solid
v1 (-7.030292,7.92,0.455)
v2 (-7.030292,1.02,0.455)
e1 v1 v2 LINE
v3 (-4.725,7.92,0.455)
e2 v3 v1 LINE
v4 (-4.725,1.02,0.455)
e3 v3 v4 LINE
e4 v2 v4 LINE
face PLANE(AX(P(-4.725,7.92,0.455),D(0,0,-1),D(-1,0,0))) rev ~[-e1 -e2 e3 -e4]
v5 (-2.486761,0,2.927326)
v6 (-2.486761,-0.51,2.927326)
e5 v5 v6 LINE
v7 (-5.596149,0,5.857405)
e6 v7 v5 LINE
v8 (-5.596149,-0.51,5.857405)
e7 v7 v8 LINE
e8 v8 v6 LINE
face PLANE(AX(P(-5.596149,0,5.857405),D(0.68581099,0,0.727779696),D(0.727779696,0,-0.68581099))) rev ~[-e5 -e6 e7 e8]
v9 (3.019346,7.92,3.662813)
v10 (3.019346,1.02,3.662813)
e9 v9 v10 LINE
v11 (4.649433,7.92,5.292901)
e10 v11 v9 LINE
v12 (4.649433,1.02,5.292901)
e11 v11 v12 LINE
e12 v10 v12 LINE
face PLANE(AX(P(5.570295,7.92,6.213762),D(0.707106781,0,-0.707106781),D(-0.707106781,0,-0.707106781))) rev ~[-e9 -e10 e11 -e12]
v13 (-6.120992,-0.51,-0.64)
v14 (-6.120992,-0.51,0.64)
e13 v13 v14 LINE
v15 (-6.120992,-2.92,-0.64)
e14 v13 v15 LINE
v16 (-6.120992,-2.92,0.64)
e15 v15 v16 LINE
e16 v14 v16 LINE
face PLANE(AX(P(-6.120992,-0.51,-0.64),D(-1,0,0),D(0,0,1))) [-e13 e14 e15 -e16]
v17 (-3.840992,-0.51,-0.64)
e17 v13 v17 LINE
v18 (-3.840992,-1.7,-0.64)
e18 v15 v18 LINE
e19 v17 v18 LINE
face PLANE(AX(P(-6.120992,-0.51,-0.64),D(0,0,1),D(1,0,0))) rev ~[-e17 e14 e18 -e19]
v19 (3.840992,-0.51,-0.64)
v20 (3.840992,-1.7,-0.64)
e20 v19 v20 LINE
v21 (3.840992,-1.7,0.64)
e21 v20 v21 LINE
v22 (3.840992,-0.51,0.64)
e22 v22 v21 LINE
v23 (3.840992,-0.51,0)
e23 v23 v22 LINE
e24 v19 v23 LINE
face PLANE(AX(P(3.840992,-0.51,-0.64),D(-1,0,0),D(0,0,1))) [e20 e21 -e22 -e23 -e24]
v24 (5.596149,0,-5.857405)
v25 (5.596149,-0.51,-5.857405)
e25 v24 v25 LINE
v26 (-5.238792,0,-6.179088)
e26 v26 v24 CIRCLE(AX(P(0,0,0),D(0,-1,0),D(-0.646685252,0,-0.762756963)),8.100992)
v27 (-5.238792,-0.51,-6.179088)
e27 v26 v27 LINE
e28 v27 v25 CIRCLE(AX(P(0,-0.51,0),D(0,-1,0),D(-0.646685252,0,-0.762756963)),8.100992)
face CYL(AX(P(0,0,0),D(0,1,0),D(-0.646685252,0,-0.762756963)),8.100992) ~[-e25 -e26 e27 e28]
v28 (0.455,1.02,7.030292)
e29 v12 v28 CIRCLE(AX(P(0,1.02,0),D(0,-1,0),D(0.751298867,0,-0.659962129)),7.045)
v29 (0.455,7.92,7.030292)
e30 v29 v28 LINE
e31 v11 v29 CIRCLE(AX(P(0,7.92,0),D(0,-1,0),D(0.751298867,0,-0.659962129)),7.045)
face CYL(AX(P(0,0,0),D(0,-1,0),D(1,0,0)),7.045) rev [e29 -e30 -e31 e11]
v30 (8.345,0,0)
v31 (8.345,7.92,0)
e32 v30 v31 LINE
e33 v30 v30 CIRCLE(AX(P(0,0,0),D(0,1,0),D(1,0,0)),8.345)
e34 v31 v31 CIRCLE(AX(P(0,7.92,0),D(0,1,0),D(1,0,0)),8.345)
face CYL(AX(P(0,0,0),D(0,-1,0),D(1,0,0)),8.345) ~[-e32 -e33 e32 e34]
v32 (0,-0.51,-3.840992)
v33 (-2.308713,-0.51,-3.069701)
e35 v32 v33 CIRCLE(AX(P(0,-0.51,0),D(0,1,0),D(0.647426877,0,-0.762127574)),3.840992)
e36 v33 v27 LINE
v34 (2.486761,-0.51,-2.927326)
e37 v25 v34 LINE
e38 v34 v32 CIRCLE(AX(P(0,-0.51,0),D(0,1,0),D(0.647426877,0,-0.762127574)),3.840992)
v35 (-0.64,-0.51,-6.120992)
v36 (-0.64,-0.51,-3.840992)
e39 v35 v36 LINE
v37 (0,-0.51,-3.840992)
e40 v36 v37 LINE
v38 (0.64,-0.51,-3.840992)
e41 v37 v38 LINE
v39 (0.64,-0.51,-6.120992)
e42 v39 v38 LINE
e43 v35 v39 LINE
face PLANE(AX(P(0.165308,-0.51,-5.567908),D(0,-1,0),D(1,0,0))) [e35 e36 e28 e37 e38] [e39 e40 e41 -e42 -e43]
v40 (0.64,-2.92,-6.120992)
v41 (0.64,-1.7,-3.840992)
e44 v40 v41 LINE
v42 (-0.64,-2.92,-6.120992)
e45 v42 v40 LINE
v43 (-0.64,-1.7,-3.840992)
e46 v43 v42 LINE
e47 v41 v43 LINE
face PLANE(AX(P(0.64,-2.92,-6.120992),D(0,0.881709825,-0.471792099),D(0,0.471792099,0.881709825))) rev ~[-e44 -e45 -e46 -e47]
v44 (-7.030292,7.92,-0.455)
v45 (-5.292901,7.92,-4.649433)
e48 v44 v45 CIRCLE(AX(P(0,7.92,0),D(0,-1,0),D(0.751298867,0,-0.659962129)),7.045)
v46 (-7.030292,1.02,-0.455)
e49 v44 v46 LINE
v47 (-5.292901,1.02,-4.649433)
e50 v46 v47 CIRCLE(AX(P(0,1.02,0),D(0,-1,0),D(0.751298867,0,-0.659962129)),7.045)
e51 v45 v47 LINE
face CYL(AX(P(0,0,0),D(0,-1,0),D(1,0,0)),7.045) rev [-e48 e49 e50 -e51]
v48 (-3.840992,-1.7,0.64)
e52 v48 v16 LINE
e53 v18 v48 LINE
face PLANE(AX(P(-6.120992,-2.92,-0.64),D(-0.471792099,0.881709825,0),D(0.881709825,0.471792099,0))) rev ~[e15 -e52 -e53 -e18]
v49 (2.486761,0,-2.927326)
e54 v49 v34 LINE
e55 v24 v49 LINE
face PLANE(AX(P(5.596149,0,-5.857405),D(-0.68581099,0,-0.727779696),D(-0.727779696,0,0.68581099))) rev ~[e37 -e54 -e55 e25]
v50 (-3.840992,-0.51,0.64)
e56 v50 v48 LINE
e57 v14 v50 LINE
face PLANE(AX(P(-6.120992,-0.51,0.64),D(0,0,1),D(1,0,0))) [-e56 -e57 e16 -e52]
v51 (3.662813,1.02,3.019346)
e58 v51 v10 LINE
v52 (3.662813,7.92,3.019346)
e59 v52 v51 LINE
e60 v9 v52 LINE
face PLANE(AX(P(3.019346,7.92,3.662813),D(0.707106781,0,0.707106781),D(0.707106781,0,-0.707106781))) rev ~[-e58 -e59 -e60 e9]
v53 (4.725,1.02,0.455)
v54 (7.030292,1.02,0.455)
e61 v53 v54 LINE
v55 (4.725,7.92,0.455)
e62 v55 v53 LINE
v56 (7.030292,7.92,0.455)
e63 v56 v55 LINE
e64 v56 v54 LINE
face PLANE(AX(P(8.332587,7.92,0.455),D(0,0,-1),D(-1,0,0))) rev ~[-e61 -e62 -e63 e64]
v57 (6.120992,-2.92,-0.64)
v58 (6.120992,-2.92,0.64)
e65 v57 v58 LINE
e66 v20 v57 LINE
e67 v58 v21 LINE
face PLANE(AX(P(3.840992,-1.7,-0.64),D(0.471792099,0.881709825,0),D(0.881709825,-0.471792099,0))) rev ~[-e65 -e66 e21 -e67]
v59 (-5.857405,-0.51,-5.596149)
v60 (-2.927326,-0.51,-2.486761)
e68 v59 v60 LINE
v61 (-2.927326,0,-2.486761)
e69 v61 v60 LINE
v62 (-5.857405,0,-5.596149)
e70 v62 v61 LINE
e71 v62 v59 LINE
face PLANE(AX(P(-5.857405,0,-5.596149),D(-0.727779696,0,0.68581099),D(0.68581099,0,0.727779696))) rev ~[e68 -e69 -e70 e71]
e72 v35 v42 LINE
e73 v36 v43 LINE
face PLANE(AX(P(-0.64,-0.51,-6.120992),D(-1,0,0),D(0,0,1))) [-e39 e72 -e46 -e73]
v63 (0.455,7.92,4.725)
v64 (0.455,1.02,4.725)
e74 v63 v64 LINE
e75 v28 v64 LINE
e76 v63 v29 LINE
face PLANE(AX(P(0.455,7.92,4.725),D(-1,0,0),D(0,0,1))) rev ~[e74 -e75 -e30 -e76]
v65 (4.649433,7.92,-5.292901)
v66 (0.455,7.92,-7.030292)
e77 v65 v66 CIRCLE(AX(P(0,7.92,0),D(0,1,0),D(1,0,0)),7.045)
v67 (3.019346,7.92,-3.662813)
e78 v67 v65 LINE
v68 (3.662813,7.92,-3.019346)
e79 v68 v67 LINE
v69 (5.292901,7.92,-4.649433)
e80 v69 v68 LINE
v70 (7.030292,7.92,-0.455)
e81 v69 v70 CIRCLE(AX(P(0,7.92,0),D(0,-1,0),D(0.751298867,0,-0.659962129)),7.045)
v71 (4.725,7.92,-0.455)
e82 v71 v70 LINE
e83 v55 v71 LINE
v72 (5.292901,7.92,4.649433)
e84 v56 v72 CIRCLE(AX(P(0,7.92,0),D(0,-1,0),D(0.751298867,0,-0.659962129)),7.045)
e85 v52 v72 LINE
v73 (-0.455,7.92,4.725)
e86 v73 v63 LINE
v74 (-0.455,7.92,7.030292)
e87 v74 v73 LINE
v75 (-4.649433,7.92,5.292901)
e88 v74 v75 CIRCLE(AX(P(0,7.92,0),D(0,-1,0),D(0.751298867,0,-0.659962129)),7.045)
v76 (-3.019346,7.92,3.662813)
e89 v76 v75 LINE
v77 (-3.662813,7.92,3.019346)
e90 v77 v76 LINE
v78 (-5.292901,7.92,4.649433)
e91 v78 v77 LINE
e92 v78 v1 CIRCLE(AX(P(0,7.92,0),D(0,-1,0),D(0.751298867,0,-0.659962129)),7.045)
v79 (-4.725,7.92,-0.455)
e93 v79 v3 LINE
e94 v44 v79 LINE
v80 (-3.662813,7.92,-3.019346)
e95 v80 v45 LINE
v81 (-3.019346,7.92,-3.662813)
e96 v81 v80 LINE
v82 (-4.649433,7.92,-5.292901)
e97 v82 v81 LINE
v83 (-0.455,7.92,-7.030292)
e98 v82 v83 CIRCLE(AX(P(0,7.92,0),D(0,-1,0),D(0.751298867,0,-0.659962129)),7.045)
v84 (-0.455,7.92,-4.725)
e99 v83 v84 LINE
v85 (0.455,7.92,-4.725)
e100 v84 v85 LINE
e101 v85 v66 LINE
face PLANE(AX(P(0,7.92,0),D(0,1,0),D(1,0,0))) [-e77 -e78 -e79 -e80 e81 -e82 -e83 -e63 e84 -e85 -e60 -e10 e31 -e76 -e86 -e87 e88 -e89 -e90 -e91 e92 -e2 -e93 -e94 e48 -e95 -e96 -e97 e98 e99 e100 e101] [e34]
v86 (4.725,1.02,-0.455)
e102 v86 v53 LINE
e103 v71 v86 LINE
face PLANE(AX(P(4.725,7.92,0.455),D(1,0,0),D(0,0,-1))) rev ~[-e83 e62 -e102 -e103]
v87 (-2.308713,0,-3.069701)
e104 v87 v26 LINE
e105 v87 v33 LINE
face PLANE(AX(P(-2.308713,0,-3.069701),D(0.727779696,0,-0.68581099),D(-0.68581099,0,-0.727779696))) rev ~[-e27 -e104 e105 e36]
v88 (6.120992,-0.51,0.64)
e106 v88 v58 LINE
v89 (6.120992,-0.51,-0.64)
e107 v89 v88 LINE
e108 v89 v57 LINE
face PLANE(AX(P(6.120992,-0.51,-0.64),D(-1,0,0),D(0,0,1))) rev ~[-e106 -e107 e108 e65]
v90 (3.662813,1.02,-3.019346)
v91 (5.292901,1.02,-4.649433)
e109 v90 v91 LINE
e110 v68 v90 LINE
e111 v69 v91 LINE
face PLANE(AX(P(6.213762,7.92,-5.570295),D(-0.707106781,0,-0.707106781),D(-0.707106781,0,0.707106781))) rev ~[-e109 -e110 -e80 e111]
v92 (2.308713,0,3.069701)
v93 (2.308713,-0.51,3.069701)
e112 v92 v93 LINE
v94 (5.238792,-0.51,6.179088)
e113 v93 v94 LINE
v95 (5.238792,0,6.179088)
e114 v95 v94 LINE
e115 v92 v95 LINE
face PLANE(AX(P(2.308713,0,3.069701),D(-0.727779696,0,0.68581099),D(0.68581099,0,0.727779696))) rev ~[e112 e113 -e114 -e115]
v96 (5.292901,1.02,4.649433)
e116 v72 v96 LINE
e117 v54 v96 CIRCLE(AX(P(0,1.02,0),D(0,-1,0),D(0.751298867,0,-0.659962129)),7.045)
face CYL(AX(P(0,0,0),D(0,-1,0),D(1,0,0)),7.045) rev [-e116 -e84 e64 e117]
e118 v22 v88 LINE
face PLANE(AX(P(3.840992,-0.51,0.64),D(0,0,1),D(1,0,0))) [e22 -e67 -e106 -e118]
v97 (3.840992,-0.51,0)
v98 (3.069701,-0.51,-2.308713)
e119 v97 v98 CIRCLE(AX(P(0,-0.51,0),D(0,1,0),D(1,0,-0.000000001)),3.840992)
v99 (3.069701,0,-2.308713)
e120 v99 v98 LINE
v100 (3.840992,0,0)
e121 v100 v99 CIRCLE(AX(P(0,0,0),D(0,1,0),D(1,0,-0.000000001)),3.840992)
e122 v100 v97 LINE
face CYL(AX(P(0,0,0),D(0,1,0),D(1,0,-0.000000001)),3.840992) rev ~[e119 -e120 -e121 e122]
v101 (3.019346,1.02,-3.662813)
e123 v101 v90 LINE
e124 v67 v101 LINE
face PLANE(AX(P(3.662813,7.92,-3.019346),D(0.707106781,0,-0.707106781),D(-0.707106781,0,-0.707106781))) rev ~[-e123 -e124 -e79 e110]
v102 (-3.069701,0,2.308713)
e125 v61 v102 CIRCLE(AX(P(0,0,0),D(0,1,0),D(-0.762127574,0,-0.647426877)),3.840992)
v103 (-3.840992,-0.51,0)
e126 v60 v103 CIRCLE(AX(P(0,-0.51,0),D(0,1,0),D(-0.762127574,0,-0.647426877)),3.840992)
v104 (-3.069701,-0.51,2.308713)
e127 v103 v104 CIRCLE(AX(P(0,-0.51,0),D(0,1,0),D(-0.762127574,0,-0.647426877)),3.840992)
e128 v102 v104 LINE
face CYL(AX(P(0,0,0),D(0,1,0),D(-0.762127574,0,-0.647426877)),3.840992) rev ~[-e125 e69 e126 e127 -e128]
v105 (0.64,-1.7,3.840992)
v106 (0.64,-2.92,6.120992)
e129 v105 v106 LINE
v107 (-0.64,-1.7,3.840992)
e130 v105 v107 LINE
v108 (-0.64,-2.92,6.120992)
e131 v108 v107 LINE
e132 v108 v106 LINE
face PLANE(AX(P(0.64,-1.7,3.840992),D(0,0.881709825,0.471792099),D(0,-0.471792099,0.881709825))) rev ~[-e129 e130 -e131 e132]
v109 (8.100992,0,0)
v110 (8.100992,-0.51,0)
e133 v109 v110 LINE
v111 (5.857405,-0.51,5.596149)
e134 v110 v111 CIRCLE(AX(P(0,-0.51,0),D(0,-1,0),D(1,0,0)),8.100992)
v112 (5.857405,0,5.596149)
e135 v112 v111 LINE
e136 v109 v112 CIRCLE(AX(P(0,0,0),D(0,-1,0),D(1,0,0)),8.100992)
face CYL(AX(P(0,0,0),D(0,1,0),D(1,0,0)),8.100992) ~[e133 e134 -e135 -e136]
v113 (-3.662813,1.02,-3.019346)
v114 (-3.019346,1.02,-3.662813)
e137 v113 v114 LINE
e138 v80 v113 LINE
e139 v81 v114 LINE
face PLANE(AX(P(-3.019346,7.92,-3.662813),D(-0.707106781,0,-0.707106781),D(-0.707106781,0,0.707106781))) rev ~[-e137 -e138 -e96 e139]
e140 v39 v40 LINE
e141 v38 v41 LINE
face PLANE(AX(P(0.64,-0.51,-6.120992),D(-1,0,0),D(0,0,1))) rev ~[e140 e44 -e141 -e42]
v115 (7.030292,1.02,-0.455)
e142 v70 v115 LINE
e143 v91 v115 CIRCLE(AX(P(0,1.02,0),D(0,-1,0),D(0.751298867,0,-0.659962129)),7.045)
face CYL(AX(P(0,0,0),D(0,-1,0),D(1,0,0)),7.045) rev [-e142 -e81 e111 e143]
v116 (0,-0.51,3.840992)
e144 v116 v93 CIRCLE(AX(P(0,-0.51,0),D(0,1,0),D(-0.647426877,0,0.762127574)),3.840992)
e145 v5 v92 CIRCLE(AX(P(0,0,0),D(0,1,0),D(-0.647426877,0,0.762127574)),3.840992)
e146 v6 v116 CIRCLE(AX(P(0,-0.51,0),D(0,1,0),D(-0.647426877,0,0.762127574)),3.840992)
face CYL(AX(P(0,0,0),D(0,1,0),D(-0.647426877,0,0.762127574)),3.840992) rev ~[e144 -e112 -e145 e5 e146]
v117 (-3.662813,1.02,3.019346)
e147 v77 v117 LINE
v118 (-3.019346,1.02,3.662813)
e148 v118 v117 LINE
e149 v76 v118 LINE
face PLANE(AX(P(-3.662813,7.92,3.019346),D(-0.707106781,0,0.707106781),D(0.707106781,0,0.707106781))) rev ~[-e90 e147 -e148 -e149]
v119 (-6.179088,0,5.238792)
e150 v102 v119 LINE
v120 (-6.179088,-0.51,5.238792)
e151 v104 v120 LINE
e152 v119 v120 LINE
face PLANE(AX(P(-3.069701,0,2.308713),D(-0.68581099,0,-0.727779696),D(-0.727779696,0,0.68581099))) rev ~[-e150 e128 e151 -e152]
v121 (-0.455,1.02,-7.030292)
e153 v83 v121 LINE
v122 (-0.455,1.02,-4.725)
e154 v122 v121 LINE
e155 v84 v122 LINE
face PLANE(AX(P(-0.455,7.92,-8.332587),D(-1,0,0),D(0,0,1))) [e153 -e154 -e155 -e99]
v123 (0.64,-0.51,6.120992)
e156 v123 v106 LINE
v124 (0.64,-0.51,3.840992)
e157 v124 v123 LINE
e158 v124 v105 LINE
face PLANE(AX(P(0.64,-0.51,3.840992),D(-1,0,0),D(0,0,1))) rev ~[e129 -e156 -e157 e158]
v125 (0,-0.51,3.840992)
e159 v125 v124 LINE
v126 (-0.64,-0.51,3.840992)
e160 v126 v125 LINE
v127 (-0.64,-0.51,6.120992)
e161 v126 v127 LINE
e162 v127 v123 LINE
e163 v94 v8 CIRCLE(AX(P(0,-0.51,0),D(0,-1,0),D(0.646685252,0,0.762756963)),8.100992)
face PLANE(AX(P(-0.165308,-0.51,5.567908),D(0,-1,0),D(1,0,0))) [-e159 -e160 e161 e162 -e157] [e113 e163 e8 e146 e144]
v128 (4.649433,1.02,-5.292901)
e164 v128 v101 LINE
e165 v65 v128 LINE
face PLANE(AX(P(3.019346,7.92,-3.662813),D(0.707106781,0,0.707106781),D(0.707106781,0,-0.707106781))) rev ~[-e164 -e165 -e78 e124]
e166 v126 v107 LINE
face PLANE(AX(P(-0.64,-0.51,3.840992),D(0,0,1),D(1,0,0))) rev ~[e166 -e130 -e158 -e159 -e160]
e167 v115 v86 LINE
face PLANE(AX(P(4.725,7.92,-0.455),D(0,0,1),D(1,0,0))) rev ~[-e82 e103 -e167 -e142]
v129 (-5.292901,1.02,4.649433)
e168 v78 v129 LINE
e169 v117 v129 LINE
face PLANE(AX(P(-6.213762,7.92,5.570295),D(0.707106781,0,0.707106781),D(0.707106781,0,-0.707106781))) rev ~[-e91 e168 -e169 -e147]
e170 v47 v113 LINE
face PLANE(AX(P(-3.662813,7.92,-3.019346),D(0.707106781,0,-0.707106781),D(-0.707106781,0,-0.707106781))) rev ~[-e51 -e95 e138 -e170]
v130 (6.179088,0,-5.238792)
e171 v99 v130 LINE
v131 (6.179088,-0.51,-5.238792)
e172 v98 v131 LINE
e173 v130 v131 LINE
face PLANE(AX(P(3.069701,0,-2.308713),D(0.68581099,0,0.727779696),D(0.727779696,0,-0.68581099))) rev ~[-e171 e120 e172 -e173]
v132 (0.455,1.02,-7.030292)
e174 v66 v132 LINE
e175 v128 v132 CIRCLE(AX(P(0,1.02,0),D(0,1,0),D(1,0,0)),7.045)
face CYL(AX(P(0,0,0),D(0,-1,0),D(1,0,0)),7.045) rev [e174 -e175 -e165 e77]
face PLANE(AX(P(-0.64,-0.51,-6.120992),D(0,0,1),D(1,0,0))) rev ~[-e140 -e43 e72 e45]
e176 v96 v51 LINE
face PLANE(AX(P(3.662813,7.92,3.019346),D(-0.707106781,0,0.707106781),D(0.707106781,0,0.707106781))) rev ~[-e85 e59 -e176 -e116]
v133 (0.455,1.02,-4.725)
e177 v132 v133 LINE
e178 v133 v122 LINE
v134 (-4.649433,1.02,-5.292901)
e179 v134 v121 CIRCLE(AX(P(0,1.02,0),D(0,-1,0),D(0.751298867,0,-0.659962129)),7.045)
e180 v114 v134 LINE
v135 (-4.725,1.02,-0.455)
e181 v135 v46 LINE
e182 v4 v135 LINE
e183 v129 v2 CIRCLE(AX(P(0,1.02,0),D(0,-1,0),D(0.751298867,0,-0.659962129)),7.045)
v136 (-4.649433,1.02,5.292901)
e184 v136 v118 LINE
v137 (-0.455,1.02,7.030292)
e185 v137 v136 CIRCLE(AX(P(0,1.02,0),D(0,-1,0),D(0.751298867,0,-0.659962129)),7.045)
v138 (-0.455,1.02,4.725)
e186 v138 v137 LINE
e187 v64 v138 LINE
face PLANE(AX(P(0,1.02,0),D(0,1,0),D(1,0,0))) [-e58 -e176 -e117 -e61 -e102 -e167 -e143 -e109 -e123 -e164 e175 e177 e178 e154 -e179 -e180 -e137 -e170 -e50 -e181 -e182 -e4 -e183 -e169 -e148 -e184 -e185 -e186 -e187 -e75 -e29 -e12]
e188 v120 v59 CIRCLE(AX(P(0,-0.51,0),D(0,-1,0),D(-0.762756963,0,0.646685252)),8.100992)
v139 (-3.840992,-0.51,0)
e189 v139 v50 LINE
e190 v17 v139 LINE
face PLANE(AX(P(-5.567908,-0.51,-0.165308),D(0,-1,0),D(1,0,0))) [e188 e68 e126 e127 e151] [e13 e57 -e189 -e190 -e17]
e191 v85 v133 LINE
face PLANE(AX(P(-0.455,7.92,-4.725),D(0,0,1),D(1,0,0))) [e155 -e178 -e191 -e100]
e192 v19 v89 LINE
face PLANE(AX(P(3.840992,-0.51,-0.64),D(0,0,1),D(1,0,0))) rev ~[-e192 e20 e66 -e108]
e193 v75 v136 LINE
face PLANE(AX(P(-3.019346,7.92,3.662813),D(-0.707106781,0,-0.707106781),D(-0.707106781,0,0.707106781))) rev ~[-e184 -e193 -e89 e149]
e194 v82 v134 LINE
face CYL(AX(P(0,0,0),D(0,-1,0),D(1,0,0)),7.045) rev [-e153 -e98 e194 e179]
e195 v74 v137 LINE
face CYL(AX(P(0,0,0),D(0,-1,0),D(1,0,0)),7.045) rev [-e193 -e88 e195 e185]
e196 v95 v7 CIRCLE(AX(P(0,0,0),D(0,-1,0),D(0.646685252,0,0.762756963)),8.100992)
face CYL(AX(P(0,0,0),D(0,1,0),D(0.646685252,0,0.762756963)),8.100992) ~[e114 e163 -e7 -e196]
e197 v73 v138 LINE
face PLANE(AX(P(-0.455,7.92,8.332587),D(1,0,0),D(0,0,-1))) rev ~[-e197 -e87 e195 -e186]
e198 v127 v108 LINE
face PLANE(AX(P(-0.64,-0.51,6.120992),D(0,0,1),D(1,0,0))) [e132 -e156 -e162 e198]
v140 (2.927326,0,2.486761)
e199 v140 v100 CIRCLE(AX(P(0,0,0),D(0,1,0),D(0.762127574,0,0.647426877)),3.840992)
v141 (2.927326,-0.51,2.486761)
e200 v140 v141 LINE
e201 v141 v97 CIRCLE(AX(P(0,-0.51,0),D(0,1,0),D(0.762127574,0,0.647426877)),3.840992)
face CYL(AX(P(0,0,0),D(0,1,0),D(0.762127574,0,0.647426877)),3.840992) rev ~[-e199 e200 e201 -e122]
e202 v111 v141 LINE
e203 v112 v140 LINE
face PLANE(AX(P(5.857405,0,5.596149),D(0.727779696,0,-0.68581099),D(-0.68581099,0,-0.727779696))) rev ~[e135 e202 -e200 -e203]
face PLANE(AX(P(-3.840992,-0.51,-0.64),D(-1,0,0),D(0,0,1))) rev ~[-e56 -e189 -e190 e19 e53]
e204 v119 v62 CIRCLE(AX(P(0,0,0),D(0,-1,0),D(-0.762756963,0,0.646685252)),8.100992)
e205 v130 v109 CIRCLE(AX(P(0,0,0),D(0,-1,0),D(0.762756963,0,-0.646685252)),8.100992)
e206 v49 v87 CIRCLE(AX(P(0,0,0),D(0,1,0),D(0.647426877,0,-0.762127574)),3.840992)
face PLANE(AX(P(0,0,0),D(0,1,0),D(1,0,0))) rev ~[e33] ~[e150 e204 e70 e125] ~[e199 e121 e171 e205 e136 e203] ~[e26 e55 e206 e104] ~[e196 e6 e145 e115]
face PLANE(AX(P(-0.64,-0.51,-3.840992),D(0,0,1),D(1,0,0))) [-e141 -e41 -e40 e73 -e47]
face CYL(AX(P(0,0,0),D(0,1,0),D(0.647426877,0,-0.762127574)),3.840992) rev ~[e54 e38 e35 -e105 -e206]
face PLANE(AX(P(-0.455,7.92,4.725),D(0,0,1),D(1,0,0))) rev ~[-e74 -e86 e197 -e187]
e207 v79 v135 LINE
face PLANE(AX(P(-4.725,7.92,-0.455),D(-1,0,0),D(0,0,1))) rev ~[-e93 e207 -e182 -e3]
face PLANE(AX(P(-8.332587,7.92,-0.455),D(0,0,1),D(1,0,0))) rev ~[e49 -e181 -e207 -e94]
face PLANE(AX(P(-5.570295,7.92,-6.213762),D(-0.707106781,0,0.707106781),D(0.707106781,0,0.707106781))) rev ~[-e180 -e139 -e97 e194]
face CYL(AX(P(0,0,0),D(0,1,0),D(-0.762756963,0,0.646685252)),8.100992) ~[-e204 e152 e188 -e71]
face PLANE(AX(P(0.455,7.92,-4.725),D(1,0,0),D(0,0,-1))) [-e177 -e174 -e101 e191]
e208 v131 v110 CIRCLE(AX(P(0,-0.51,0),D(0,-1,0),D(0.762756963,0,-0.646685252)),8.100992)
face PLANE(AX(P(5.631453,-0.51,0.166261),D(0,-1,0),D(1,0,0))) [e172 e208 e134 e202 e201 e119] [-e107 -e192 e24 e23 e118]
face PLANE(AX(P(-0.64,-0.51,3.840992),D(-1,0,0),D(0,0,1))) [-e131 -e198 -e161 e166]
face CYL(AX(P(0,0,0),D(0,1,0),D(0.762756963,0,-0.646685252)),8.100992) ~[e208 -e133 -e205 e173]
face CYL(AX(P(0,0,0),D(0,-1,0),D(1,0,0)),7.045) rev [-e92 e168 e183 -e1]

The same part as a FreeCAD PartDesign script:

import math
import FreeCAD as App
import Part
import Sketcher

V = App.Vector
Q = App.Units.Quantity

doc = App.newDocument("Part")
params = doc.addObject("Spreadsheet::Sheet", "Params")
for row, (alias, value) in enumerate([
    ("sketch1_diameter", "16.69 mm"),
    ("sketch1_diameter2", "14.09 mm"),
    ("pad1_length", "7.92 mm"),
    ("sketch2_diameter", "14.09 mm"),
    ("pad2_length", "1.02 mm"),
    ("sketch3_width", "0.91 mm"),
    ("sketch4_length", "0.91 mm"),
    ("sketch5_height", "0.91 mm"),
    ("sketch6_length", "0.91 mm"),
    ("sketch7_width", "0.91 mm"),
    ("sketch8_length", "0.91 mm"),
    ("sketch9_height", "0.91 mm"),
    ("sketch10_length", "0.91 mm"),
    ("pad11_length", "0.51 mm"),
    ("sketch12_width", "1.28 mm"),
    ("sketch12_width2", "2.28 mm"),
    ("pad12_length", "2.41 mm"),
    ("sketch13_width", "2.28 mm"),
    ("sketch13_height", "1.22 mm"),
    ("sketch14_width", "1.22 mm"),
    ("sketch14_height", "2.28 mm"),
    ("pocket2_length", "2.41 mm"),
    ("sketch15_width", "2.28 mm"),
    ("sketch15_height", "1.22 mm"),
    ("pocket3_length", "2.41 mm"),
], start=1):
    params.set(f"A{row}", alias)
    params.set(f"B{row}", "=" + value)
    params.setAlias(f"B{row}", alias)

body = doc.addObject("PartDesign::Body", "Body")

# Sketch on XZ plane
sketch1 = doc.addObject("Sketcher::SketchObject", "Sketch")
body.addObject(sketch1)
sketch1.AttachmentSupport = (doc.XZ_Plane, [""])
sketch1.MapMode = "FlatFace"
sketch1.addGeometry(Part.Circle(V(0, 0, 0), V(0, 0, 1), 8), False)
sketch1.addGeometry(Part.Circle(V(0, 0, 0), V(0, 0, 1), 7), False)
sketch1.addConstraint(Sketcher.Constraint("Coincident", 0, 3, -1, 1))
sketch1.addConstraint(Sketcher.Constraint("Coincident", 1, 3, -1, 1))
sketch1.addConstraint(Sketcher.Constraint("Diameter", 0, 16.69))
sketch1.addConstraint(Sketcher.Constraint("Diameter", 1, 14.09))
sketch1.setExpression("Constraints[2]", "Params.sketch1_diameter")
sketch1.setExpression("Constraints[3]", "Params.sketch1_diameter2")
pad1 = doc.addObject("PartDesign::Pad", "Pad")
body.addObject(pad1)
pad1.Profile = sketch1
pad1.setExpression("Length", "Params.pad1_length")
pad1.Reversed = True

# Sketch on XZ plane
sketch2 = doc.addObject("Sketcher::SketchObject", "Sketch001")
body.addObject(sketch2)
sketch2.AttachmentSupport = (doc.XZ_Plane, [""])
sketch2.MapMode = "FlatFace"
sketch2.addGeometry(Part.Circle(V(0, 0, 0), V(0, 0, 1), 7), False)
sketch2.addConstraint(Sketcher.Constraint("Coincident", 0, 3, -1, 1))
sketch2.addConstraint(Sketcher.Constraint("Diameter", 0, 14.09))
sketch2.setExpression("Constraints[1]", "Params.sketch2_diameter")
pad2 = doc.addObject("PartDesign::Pad", "Pad001")
body.addObject(pad2)
pad2.Profile = sketch2
pad2.setExpression("Length", "Params.pad2_length")
pad2.Reversed = True

# Sketch on XZ plane
sketch3 = doc.addObject("Sketcher::SketchObject", "Sketch002")
body.addObject(sketch3)
sketch3.AttachmentSupport = (doc.XZ_Plane, [""])
sketch3.MapMode = "FlatFace"
sketch3.AttachmentOffset = App.Placement(V(0, 0, -7.92), App.Rotation())
sketch3.addGeometry(Part.LineSegment(V(-0.5, -4.7, 0), V(0.5, -4.7, 0)), False)
sketch3.addGeometry(Part.LineSegment(V(0.5, -4.7, 0), V(0.5, -8.3, 0)), False)
sketch3.addGeometry(Part.ArcOfCircle(Part.Circle(V(0, 0, 0), V(0, 0, 1), 8.3), math.radians(-93.13), math.radians(-86.87)), False)
sketch3.addGeometry(Part.LineSegment(V(-0.5, -8.3, 0), V(-0.5, -4.7, 0)), False)
sketch3.addConstraint(Sketcher.Constraint("Coincident", 0, 2, 1, 1))
sketch3.addConstraint(Sketcher.Constraint("Coincident", 1, 2, 2, 2))
sketch3.addConstraint(Sketcher.Constraint("Coincident", 2, 1, 3, 1))
sketch3.addConstraint(Sketcher.Constraint("Coincident", 3, 2, 0, 1))
sketch3.addConstraint(Sketcher.Constraint("Horizontal", 0))
sketch3.addConstraint(Sketcher.Constraint("Vertical", 1))
sketch3.addConstraint(Sketcher.Constraint("Vertical", 3))
sketch3.addConstraint(Sketcher.Constraint("Coincident", 2, 3, -1, 1))
sketch3.addConstraint(Sketcher.Constraint("Horizontal", 1, 2, 2, 1))
sketch3.addConstraint(Sketcher.Constraint("Radius", 2, 8.345))
sketch3.addConstraint(Sketcher.Constraint("DistanceX", 0, 1, 0, 2, 0.91))
sketch3.addConstraint(Sketcher.Constraint("DistanceY", 0, 2, -1, 1, 4.725))
sketch3.setExpression("Constraints[10]", "Params.sketch3_width")
pad3 = doc.addObject("PartDesign::Pad", "Pad002")
body.addObject(pad3)
pad3.Profile = sketch3
pad3.Type = "UpToFirst"

# Sketch on XZ plane
sketch4 = doc.addObject("Sketcher::SketchObject", "Sketch003")
body.addObject(sketch4)
sketch4.AttachmentSupport = (doc.XZ_Plane, [""])
sketch4.MapMode = "FlatFace"
sketch4.AttachmentOffset = App.Placement(V(0, 0, -7.92), App.Rotation())
sketch4.addGeometry(Part.LineSegment(V(5.6, -6.2, 0), V(3, -3.7, 0)), False)
sketch4.addGeometry(Part.LineSegment(V(3, -3.7, 0), V(3.7, -3, 0)), False)
sketch4.addGeometry(Part.LineSegment(V(3.7, -3, 0), V(6.2, -5.6, 0)), False)
sketch4.addGeometry(Part.ArcOfCircle(Part.Circle(V(0, 0, 0), V(0, 0, 1), 8.3), math.radians(-48.13), math.radians(-41.87)), False)
sketch4.addConstraint(Sketcher.Constraint("Coincident", 0, 2, 1, 1))
sketch4.addConstraint(Sketcher.Constraint("Coincident", 1, 2, 2, 1))
sketch4.addConstraint(Sketcher.Constraint("Coincident", 2, 2, 3, 2))
sketch4.addConstraint(Sketcher.Constraint("Coincident", 3, 1, 0, 1))
sketch4.addConstraint(Sketcher.Constraint("Coincident", 3, 3, -1, 1))
sketch4.addConstraint(Sketcher.Constraint("Perpendicular", 0, 1))
sketch4.addConstraint(Sketcher.Constraint("Perpendicular", 1, 2))
sketch4.addConstraint(Sketcher.Constraint("Equal", 0, 2))
sketch4.addConstraint(Sketcher.Constraint("Angle", 0, Q("135 deg")))
sketch4.addConstraint(Sketcher.Constraint("Radius", 3, 8.345))
sketch4.addConstraint(Sketcher.Constraint("Distance", 1, 0.91))
sketch4.addConstraint(Sketcher.Constraint("DistanceX", 1, 2, 2, 2, 2.550949))
sketch4.setExpression("Constraints[10]", "Params.sketch4_length")
pad4 = doc.addObject("PartDesign::Pad", "Pad003")
body.addObject(pad4)
pad4.Profile = sketch4
pad4.Type = "UpToFirst"

# Sketch on XZ plane
sketch5 = doc.addObject("Sketcher::SketchObject", "Sketch004")
body.addObject(sketch5)
sketch5.AttachmentSupport = (doc.XZ_Plane, [""])
sketch5.MapMode = "FlatFace"
sketch5.AttachmentOffset = App.Placement(V(0, 0, -7.92), App.Rotation())
sketch5.addGeometry(Part.LineSegment(V(8.3, -0.5, 0), V(4.7, -0.5, 0)), False)
sketch5.addGeometry(Part.LineSegment(V(4.7, -0.5, 0), V(4.7, 0.5, 0)), False)
sketch5.addGeometry(Part.LineSegment(V(4.7, 0.5, 0), V(8.3, 0.5, 0)), False)
sketch5.addGeometry(Part.ArcOfCircle(Part.Circle(V(0, 0, 0), V(0, 0, 1), 8.3), math.radians(-3.13), math.radians(3.13)), False)
sketch5.addConstraint(Sketcher.Constraint("Coincident", 0, 2, 1, 1))
sketch5.addConstraint(Sketcher.Constraint("Coincident", 1, 2, 2, 1))
sketch5.addConstraint(Sketcher.Constraint("Coincident", 2, 2, 3, 2))
sketch5.addConstraint(Sketcher.Constraint("Coincident", 3, 1, 0, 1))
sketch5.addConstraint(Sketcher.Constraint("Horizontal", 0))
sketch5.addConstraint(Sketcher.Constraint("Vertical", 1))
sketch5.addConstraint(Sketcher.Constraint("Horizontal", 2))
sketch5.addConstraint(Sketcher.Constraint("Coincident", 3, 3, -1, 1))
sketch5.addConstraint(Sketcher.Constraint("Vertical", 2, 2, 3, 1))
sketch5.addConstraint(Sketcher.Constraint("Radius", 3, 8.345))
sketch5.addConstraint(Sketcher.Constraint("DistanceY", 1, 1, 1, 2, 0.91))
sketch5.addConstraint(Sketcher.Constraint("DistanceX", -1, 1, 0, 2, 4.725))
sketch5.setExpression("Constraints[10]", "Params.sketch5_height")
pad5 = doc.addObject("PartDesign::Pad", "Pad004")
body.addObject(pad5)
pad5.Profile = sketch5
pad5.Type = "UpToFirst"

# Sketch on XZ plane
sketch6 = doc.addObject("Sketcher::SketchObject", "Sketch005")
body.addObject(sketch6)
sketch6.AttachmentSupport = (doc.XZ_Plane, [""])
sketch6.MapMode = "FlatFace"
sketch6.AttachmentOffset = App.Placement(V(0, 0, -7.92), App.Rotation())
sketch6.addGeometry(Part.LineSegment(V(6.2, 5.6, 0), V(3.7, 3, 0)), False)
sketch6.addGeometry(Part.LineSegment(V(3.7, 3, 0), V(3, 3.7, 0)), False)
sketch6.addGeometry(Part.LineSegment(V(3, 3.7, 0), V(5.6, 6.2, 0)), False)
sketch6.addGeometry(Part.ArcOfCircle(Part.Circle(V(0, 0, 0), V(0, 0, 1), 8.3), math.radians(41.87), math.radians(48.13)), False)
sketch6.addConstraint(Sketcher.Constraint("Coincident", 0, 2, 1, 1))
sketch6.addConstraint(Sketcher.Constraint("Coincident", 1, 2, 2, 1))
sketch6.addConstraint(Sketcher.Constraint("Coincident", 2, 2, 3, 2))
sketch6.addConstraint(Sketcher.Constraint("Coincident", 3, 1, 0, 1))
sketch6.addConstraint(Sketcher.Constraint("Coincident", 3, 3, -1, 1))
sketch6.addConstraint(Sketcher.Constraint("Perpendicular", 0, 1))
sketch6.addConstraint(Sketcher.Constraint("Perpendicular", 1, 2))
sketch6.addConstraint(Sketcher.Constraint("Equal", 0, 2))
sketch6.addConstraint(Sketcher.Constraint("Angle", 0, Q("-135 deg")))
sketch6.addConstraint(Sketcher.Constraint("Radius", 3, 8.345))
sketch6.addConstraint(Sketcher.Constraint("Distance", 1, 0.91))
sketch6.addConstraint(Sketcher.Constraint("DistanceX", 1, 2, 2, 2, 2.550949))
sketch6.setExpression("Constraints[10]", "Params.sketch6_length")
pad6 = doc.addObject("PartDesign::Pad", "Pad005")
body.addObject(pad6)
pad6.Profile = sketch6
pad6.Type = "UpToFirst"

# Sketch on XZ plane
sketch7 = doc.addObject("Sketcher::SketchObject", "Sketch006")
body.addObject(sketch7)
sketch7.AttachmentSupport = (doc.XZ_Plane, [""])
sketch7.MapMode = "FlatFace"
sketch7.AttachmentOffset = App.Placement(V(0, 0, -7.92), App.Rotation())
sketch7.addGeometry(Part.LineSegment(V(0.5, 8.3, 0), V(0.5, 4.7, 0)), False)
sketch7.addGeometry(Part.LineSegment(V(0.5, 4.7, 0), V(-0.5, 4.7, 0)), False)
sketch7.addGeometry(Part.LineSegment(V(-0.5, 4.7, 0), V(-0.5, 8.3, 0)), False)
sketch7.addGeometry(Part.ArcOfCircle(Part.Circle(V(0, 0, 0), V(0, 0, 1), 8.3), math.radians(86.87), math.radians(93.13)), False)
sketch7.addConstraint(Sketcher.Constraint("Coincident", 0, 2, 1, 1))
sketch7.addConstraint(Sketcher.Constraint("Coincident", 1, 2, 2, 1))
sketch7.addConstraint(Sketcher.Constraint("Coincident", 2, 2, 3, 2))
sketch7.addConstraint(Sketcher.Constraint("Coincident", 3, 1, 0, 1))
sketch7.addConstraint(Sketcher.Constraint("Vertical", 0))
sketch7.addConstraint(Sketcher.Constraint("Horizontal", 1))
sketch7.addConstraint(Sketcher.Constraint("Vertical", 2))
sketch7.addConstraint(Sketcher.Constraint("Coincident", 3, 3, -1, 1))
sketch7.addConstraint(Sketcher.Constraint("Horizontal", 2, 2, 3, 1))
sketch7.addConstraint(Sketcher.Constraint("Radius", 3, 8.345))
sketch7.addConstraint(Sketcher.Constraint("DistanceX", 1, 2, 1, 1, 0.91))
sketch7.addConstraint(Sketcher.Constraint("DistanceY", -1, 1, 0, 2, 4.725))
sketch7.setExpression("Constraints[10]", "Params.sketch7_width")
pad7 = doc.addObject("PartDesign::Pad", "Pad006")
body.addObject(pad7)
pad7.Profile = sketch7
pad7.Type = "UpToFirst"

# Sketch on XZ plane
sketch8 = doc.addObject("Sketcher::SketchObject", "Sketch007")
body.addObject(sketch8)
sketch8.AttachmentSupport = (doc.XZ_Plane, [""])
sketch8.MapMode = "FlatFace"
sketch8.AttachmentOffset = App.Placement(V(0, 0, -7.92), App.Rotation())
sketch8.addGeometry(Part.LineSegment(V(-5.6, 6.2, 0), V(-3, 3.7, 0)), False)
sketch8.addGeometry(Part.LineSegment(V(-3, 3.7, 0), V(-3.7, 3, 0)), False)
sketch8.addGeometry(Part.LineSegment(V(-3.7, 3, 0), V(-6.2, 5.6, 0)), False)
sketch8.addGeometry(Part.ArcOfCircle(Part.Circle(V(0, 0, 0), V(0, 0, 1), 8.3), math.radians(131.87), math.radians(138.13)), False)
sketch8.addConstraint(Sketcher.Constraint("Coincident", 0, 2, 1, 1))
sketch8.addConstraint(Sketcher.Constraint("Coincident", 1, 2, 2, 1))
sketch8.addConstraint(Sketcher.Constraint("Coincident", 2, 2, 3, 2))
sketch8.addConstraint(Sketcher.Constraint("Coincident", 3, 1, 0, 1))
sketch8.addConstraint(Sketcher.Constraint("Coincident", 3, 3, -1, 1))
sketch8.addConstraint(Sketcher.Constraint("Perpendicular", 0, 1))
sketch8.addConstraint(Sketcher.Constraint("Perpendicular", 1, 2))
sketch8.addConstraint(Sketcher.Constraint("Equal", 0, 2))
sketch8.addConstraint(Sketcher.Constraint("Angle", 0, Q("-45 deg")))
sketch8.addConstraint(Sketcher.Constraint("Radius", 3, 8.345))
sketch8.addConstraint(Sketcher.Constraint("Distance", 1, 0.91))
sketch8.addConstraint(Sketcher.Constraint("DistanceX", 2, 2, 1, 2, 2.550949))
sketch8.setExpression("Constraints[10]", "Params.sketch8_length")
pad8 = doc.addObject("PartDesign::Pad", "Pad007")
body.addObject(pad8)
pad8.Profile = sketch8
pad8.Type = "UpToFirst"

# Sketch on XZ plane
sketch9 = doc.addObject("Sketcher::SketchObject", "Sketch008")
body.addObject(sketch9)
sketch9.AttachmentSupport = (doc.XZ_Plane, [""])
sketch9.MapMode = "FlatFace"
sketch9.AttachmentOffset = App.Placement(V(0, 0, -7.92), App.Rotation())
sketch9.addGeometry(Part.LineSegment(V(-8.3, 0.5, 0), V(-4.7, 0.5, 0)), False)
sketch9.addGeometry(Part.LineSegment(V(-4.7, 0.5, 0), V(-4.7, -0.5, 0)), False)
sketch9.addGeometry(Part.LineSegment(V(-4.7, -0.5, 0), V(-8.3, -0.5, 0)), False)
sketch9.addGeometry(Part.ArcOfCircle(Part.Circle(V(0, 0, 0), V(0, 0, 1), 8.3), math.radians(176.87), math.radians(183.13)), False)
sketch9.addConstraint(Sketcher.Constraint("Coincident", 0, 2, 1, 1))
sketch9.addConstraint(Sketcher.Constraint("Coincident", 1, 2, 2, 1))
sketch9.addConstraint(Sketcher.Constraint("Coincident", 2, 2, 3, 2))
sketch9.addConstraint(Sketcher.Constraint("Coincident", 3, 1, 0, 1))
sketch9.addConstraint(Sketcher.Constraint("Horizontal", 0))
sketch9.addConstraint(Sketcher.Constraint("Vertical", 1))
sketch9.addConstraint(Sketcher.Constraint("Horizontal", 2))
sketch9.addConstraint(Sketcher.Constraint("Coincident", 3, 3, -1, 1))
sketch9.addConstraint(Sketcher.Constraint("Vertical", 2, 2, 3, 1))
sketch9.addConstraint(Sketcher.Constraint("Radius", 3, 8.345))
sketch9.addConstraint(Sketcher.Constraint("DistanceY", 1, 2, 1, 1, 0.91))
sketch9.addConstraint(Sketcher.Constraint("DistanceX", 0, 2, -1, 1, 4.725))
sketch9.setExpression("Constraints[10]", "Params.sketch9_height")
pad9 = doc.addObject("PartDesign::Pad", "Pad008")
body.addObject(pad9)
pad9.Profile = sketch9
pad9.Type = "UpToFirst"

# Sketch on XZ plane
sketch10 = doc.addObject("Sketcher::SketchObject", "Sketch009")
body.addObject(sketch10)
sketch10.AttachmentSupport = (doc.XZ_Plane, [""])
sketch10.MapMode = "FlatFace"
sketch10.AttachmentOffset = App.Placement(V(0, 0, -7.92), App.Rotation())
sketch10.addGeometry(Part.LineSegment(V(-6.2, -5.6, 0), V(-3.7, -3, 0)), False)
sketch10.addGeometry(Part.LineSegment(V(-3.7, -3, 0), V(-3, -3.7, 0)), False)
sketch10.addGeometry(Part.LineSegment(V(-3, -3.7, 0), V(-5.6, -6.2, 0)), False)
sketch10.addGeometry(Part.ArcOfCircle(Part.Circle(V(0, 0, 0), V(0, 0, 1), 8.3), math.radians(-138.13), math.radians(-131.87)), False)
sketch10.addConstraint(Sketcher.Constraint("Coincident", 0, 2, 1, 1))
sketch10.addConstraint(Sketcher.Constraint("Coincident", 1, 2, 2, 1))
sketch10.addConstraint(Sketcher.Constraint("Coincident", 2, 2, 3, 2))
sketch10.addConstraint(Sketcher.Constraint("Coincident", 3, 1, 0, 1))
sketch10.addConstraint(Sketcher.Constraint("Coincident", 3, 3, -1, 1))
sketch10.addConstraint(Sketcher.Constraint("Perpendicular", 0, 1))
sketch10.addConstraint(Sketcher.Constraint("Perpendicular", 1, 2))
sketch10.addConstraint(Sketcher.Constraint("Equal", 0, 2))
sketch10.addConstraint(Sketcher.Constraint("Angle", 0, Q("45 deg")))
sketch10.addConstraint(Sketcher.Constraint("Radius", 3, 8.345))
sketch10.addConstraint(Sketcher.Constraint("Distance", 1, 0.91))
sketch10.addConstraint(Sketcher.Constraint("DistanceX", 2, 2, 1, 2, 2.550949))
sketch10.setExpression("Constraints[10]", "Params.sketch10_length")
pad10 = doc.addObject("PartDesign::Pad", "Pad009")
body.addObject(pad10)
pad10.Profile = sketch10
pad10.Type = "UpToFirst"

# Sketch on XZ plane
sketch11 = doc.addObject("Sketcher::SketchObject", "Sketch010")
body.addObject(sketch11)
sketch11.AttachmentSupport = (doc.XZ_Plane, [""])
sketch11.MapMode = "FlatFace"
sketch11.addGeometry(Part.LineSegment(V(-3.1, 2.3, 0), V(-6.2, 5.2, 0)), False)
sketch11.addGeometry(Part.ArcOfCircle(Part.Circle(V(0, 0, 0), V(0, 0, 1), 8.1), math.radians(140), math.radians(224)), False)
sketch11.addGeometry(Part.LineSegment(V(-5.9, -5.6, 0), V(-2.9, -2.5, 0)), False)
sketch11.addGeometry(Part.ArcOfCircle(Part.Circle(V(0, 0, 0), V(0, 0, 1), 3.8), math.radians(143), math.radians(220)), False)
sketch11.addGeometry(Part.LineSegment(V(2.3, 3.1, 0), V(5.2, 6.2, 0)), False)
sketch11.addGeometry(Part.ArcOfCircle(Part.Circle(V(0, 0, 0), V(0, 0, 1), 8.1), math.radians(50), math.radians(134)), False)
sketch11.addGeometry(Part.LineSegment(V(-5.6, 5.9, 0), V(-2.5, 2.9, 0)), False)
sketch11.addGeometry(Part.ArcOfCircle(Part.Circle(V(0, 0, 0), V(0, 0, 1), 3.8), math.radians(53), math.radians(130)), False)
sketch11.addGeometry(Part.ArcOfCircle(Part.Circle(V(0, 0, 0), V(0, 0, 1), 8.1), math.radians(0), math.radians(44)), False)
sketch11.addGeometry(Part.LineSegment(V(5.9, 5.6, 0), V(2.9, 2.5, 0)), False)
sketch11.addGeometry(Part.ArcOfCircle(Part.Circle(V(0, 0, 0), V(0, 0, 1), 3.8), math.radians(0), math.radians(40)), False)
sketch11.addGeometry(Part.ArcOfCircle(Part.Circle(V(0, 0, 0), V(0, 0, 1), 3.8), math.radians(-37), math.radians(0)), False)
sketch11.addGeometry(Part.LineSegment(V(3.1, -2.3, 0), V(6.2, -5.2, 0)), False)
sketch11.addGeometry(Part.ArcOfCircle(Part.Circle(V(0, 0, 0), V(0, 0, 1), 8.1), math.radians(-40), math.radians(0)), False)
sketch11.addGeometry(Part.ArcOfCircle(Part.Circle(V(0, 0, 0), V(0, 0, 1), 8.1), math.radians(-130), math.radians(-46)), False)
sketch11.addGeometry(Part.LineSegment(V(5.6, -5.9, 0), V(2.5, -2.9, 0)), False)
sketch11.addGeometry(Part.ArcOfCircle(Part.Circle(V(0, 0, 0), V(0, 0, 1), 3.8), math.radians(-127), math.radians(-50)), False)
sketch11.addGeometry(Part.LineSegment(V(-2.3, -3.1, 0), V(-5.2, -6.2, 0)), False)
sketch11.addConstraint(Sketcher.Constraint("Coincident", 0, 2, 1, 1))
sketch11.addConstraint(Sketcher.Constraint("Coincident", 1, 2, 2, 1))
sketch11.addConstraint(Sketcher.Constraint("Coincident", 2, 2, 3, 2))
sketch11.addConstraint(Sketcher.Constraint("Coincident", 3, 1, 0, 1))
sketch11.addConstraint(Sketcher.Constraint("Coincident", 4, 2, 5, 1))
sketch11.addConstraint(Sketcher.Constraint("Coincident", 5, 2, 6, 1))
sketch11.addConstraint(Sketcher.Constraint("Coincident", 6, 2, 7, 2))
sketch11.addConstraint(Sketcher.Constraint("Coincident", 7, 1, 4, 1))
sketch11.addConstraint(Sketcher.Constraint("Coincident", 8, 2, 9, 1))
sketch11.addConstraint(Sketcher.Constraint("Coincident", 9, 2, 10, 2))
sketch11.addConstraint(Sketcher.Constraint("Tangent", 10, 1, 11, 2))
sketch11.addConstraint(Sketcher.Constraint("Coincident", 11, 1, 12, 1))
sketch11.addConstraint(Sketcher.Constraint("Coincident", 12, 2, 13, 1))
sketch11.addConstraint(Sketcher.Constraint("Tangent", 13, 2, 8, 1))
sketch11.addConstraint(Sketcher.Constraint("Coincident", 14, 2, 15, 1))
sketch11.addConstraint(Sketcher.Constraint("Coincident", 15, 2, 16, 2))
sketch11.addConstraint(Sketcher.Constraint("Coincident", 16, 1, 17, 1))
sketch11.addConstraint(Sketcher.Constraint("Coincident", 17, 2, 14, 1))
sketch11.addConstraint(Sketcher.Constraint("Coincident", 1, 3, -1, 1))
sketch11.addConstraint(Sketcher.Constraint("Coincident", 3, 3, -1, 1))
sketch11.addConstraint(Sketcher.Constraint("Coincident", 5, 3, -1, 1))
sketch11.addConstraint(Sketcher.Constraint("Coincident", 7, 3, -1, 1))
sketch11.addConstraint(Sketcher.Constraint("Coincident", 8, 3, -1, 1))
sketch11.addConstraint(Sketcher.Constraint("Coincident", 10, 3, -1, 1))
sketch11.addConstraint(Sketcher.Constraint("Coincident", 14, 3, -1, 1))
sketch11.addConstraint(Sketcher.Constraint("Coincident", 16, 3, -1, 1))
sketch11.addConstraint(Sketcher.Constraint("Equal", 1, 5))
sketch11.addConstraint(Sketcher.Constraint("Equal", 3, 7))
sketch11.addConstraint(Sketcher.Constraint("Equal", 5, 8))
sketch11.addConstraint(Sketcher.Constraint("Equal", 7, 10))
sketch11.addConstraint(Sketcher.Constraint("Equal", 10, 11))
sketch11.addConstraint(Sketcher.Constraint("Equal", 8, 13))
sketch11.addConstraint(Sketcher.Constraint("Equal", 13, 14))
sketch11.addConstraint(Sketcher.Constraint("Equal", 11, 16))
sketch11.addConstraint(Sketcher.Constraint("PointOnObject", 10, 1, -1))
sketch11.addConstraint(Sketcher.Constraint("PointOnObject", 13, 2, -1))
sketch11.addConstraint(Sketcher.Constraint("Perpendicular", 0, 2))
sketch11.addConstraint(Sketcher.Constraint("Parallel", 2, 4))
sketch11.addConstraint(Sketcher.Constraint("Perpendicular", 4, 6))
sketch11.addConstraint(Sketcher.Constraint("Perpendicular", 6, 9))
sketch11.addConstraint(Sketcher.Constraint("Perpendicular", 9, 12))
sketch11.addConstraint(Sketcher.Constraint("Parallel", 12, 15))
sketch11.addConstraint(Sketcher.Constraint("Perpendicular", 15, 17))
sketch11.addConstraint(Sketcher.Constraint("Equal", 0, 2))
sketch11.addConstraint(Sketcher.Constraint("Equal", 2, 4))
sketch11.addConstraint(Sketcher.Constraint("Equal", 4, 6))
sketch11.addConstraint(Sketcher.Constraint("Equal", 6, 9))
sketch11.addConstraint(Sketcher.Constraint("Equal", 9, 12))
sketch11.addConstraint(Sketcher.Constraint("Equal", 12, 15))
sketch11.addConstraint(Sketcher.Constraint("Equal", 15, 17))
sketch11.addConstraint(Sketcher.Constraint("Radius", 1, 8.100992))
sketch11.addConstraint(Sketcher.Constraint("Radius", 3, 3.840992))
sketch11.addConstraint(Sketcher.Constraint("DistanceX", 3, 1, -1, 1, 3.069701))
sketch11.addConstraint(Sketcher.Constraint("Distance", 0, 4.272429))
pad11 = doc.addObject("PartDesign::Pad", "Pad010")
body.addObject(pad11)
pad11.Profile = sketch11
pad11.setExpression("Length", "Params.pad11_length")

# Sketch on XZ plane
sketch12 = doc.addObject("Sketcher::SketchObject", "Sketch011")
body.addObject(sketch12)
sketch12.AttachmentSupport = (doc.XZ_Plane, [""])
sketch12.MapMode = "FlatFace"
sketch12.AttachmentOffset = App.Placement(V(0, 0, 0.51), App.Rotation())
sketch12.addGeometry(Part.LineSegment(V(-0.6, 6.1, 0), V(-0.6, 3.8, 0)), False)
sketch12.addGeometry(Part.LineSegment(V(-0.6, 3.8, 0), V(0.6, 3.8, 0)), False)
sketch12.addGeometry(Part.LineSegment(V(0.6, 3.8, 0), V(0.6, 6.1, 0)), False)
sketch12.addGeometry(Part.LineSegment(V(0.6, 6.1, 0), V(-0.6, 6.1, 0)), False)
sketch12.addGeometry(Part.LineSegment(V(3.8, 0.6, 0), V(3.8, -0.6, 0)), False)
sketch12.addGeometry(Part.LineSegment(V(3.8, -0.6, 0), V(6.1, -0.6, 0)), False)
sketch12.addGeometry(Part.LineSegment(V(6.1, -0.6, 0), V(6.1, 0.6, 0)), False)
sketch12.addGeometry(Part.LineSegment(V(6.1, 0.6, 0), V(3.8, 0.6, 0)), False)
sketch12.addGeometry(Part.LineSegment(V(-0.6, -3.8, 0), V(-0.6, -6.1, 0)), False)
sketch12.addGeometry(Part.LineSegment(V(-0.6, -6.1, 0), V(0.6, -6.1, 0)), False)
sketch12.addGeometry(Part.LineSegment(V(0.6, -6.1, 0), V(0.6, -3.8, 0)), False)
sketch12.addGeometry(Part.LineSegment(V(0.6, -3.8, 0), V(-0.6, -3.8, 0)), False)
sketch12.addGeometry(Part.LineSegment(V(-6.1, 0.6, 0), V(-6.1, -0.6, 0)), False)
sketch12.addGeometry(Part.LineSegment(V(-6.1, -0.6, 0), V(-3.8, -0.6, 0)), False)
sketch12.addGeometry(Part.LineSegment(V(-3.8, -0.6, 0), V(-3.8, 0.6, 0)), False)
sketch12.addGeometry(Part.LineSegment(V(-3.8, 0.6, 0), V(-6.1, 0.6, 0)), False)
sketch12.addConstraint(Sketcher.Constraint("Coincident", 0, 2, 1, 1))
sketch12.addConstraint(Sketcher.Constraint("Coincident", 1, 2, 2, 1))
sketch12.addConstraint(Sketcher.Constraint("Coincident", 2, 2, 3, 1))
sketch12.addConstraint(Sketcher.Constraint("Coincident", 3, 2, 0, 1))
sketch12.addConstraint(Sketcher.Constraint("Coincident", 4, 2, 5, 1))
sketch12.addConstraint(Sketcher.Constraint("Coincident", 5, 2, 6, 1))
sketch12.addConstraint(Sketcher.Constraint("Coincident", 6, 2, 7, 1))
sketch12.addConstraint(Sketcher.Constraint("Coincident", 7, 2, 4, 1))
sketch12.addConstraint(Sketcher.Constraint("Coincident", 8, 2, 9, 1))
sketch12.addConstraint(Sketcher.Constraint("Coincident", 9, 2, 10, 1))
sketch12.addConstraint(Sketcher.Constraint("Coincident", 10, 2, 11, 1))
sketch12.addConstraint(Sketcher.Constraint("Coincident", 11, 2, 8, 1))
sketch12.addConstraint(Sketcher.Constraint("Coincident", 12, 2, 13, 1))
sketch12.addConstraint(Sketcher.Constraint("Coincident", 13, 2, 14, 1))
sketch12.addConstraint(Sketcher.Constraint("Coincident", 14, 2, 15, 1))
sketch12.addConstraint(Sketcher.Constraint("Coincident", 15, 2, 12, 1))
sketch12.addConstraint(Sketcher.Constraint("Vertical", 0))
sketch12.addConstraint(Sketcher.Constraint("Horizontal", 1))
sketch12.addConstraint(Sketcher.Constraint("Vertical", 2))
sketch12.addConstraint(Sketcher.Constraint("Horizontal", 3))
sketch12.addConstraint(Sketcher.Constraint("Vertical", 4))
sketch12.addConstraint(Sketcher.Constraint("Horizontal", 5))
sketch12.addConstraint(Sketcher.Constraint("Vertical", 6))
sketch12.addConstraint(Sketcher.Constraint("Horizontal", 7))
sketch12.addConstraint(Sketcher.Constraint("Vertical", 8))
sketch12.addConstraint(Sketcher.Constraint("Horizontal", 9))
sketch12.addConstraint(Sketcher.Constraint("Vertical", 10))
sketch12.addConstraint(Sketcher.Constraint("Horizontal", 11))
sketch12.addConstraint(Sketcher.Constraint("Vertical", 12))
sketch12.addConstraint(Sketcher.Constraint("Horizontal", 13))
sketch12.addConstraint(Sketcher.Constraint("Vertical", 14))
sketch12.addConstraint(Sketcher.Constraint("Horizontal", 15))
sketch12.addConstraint(Sketcher.Constraint("Symmetric", 2, 2, 8, 2, -1, 1))
sketch12.addConstraint(Sketcher.Constraint("Symmetric", 0, 2, 10, 2, -1, 1))
sketch12.addConstraint(Sketcher.Constraint("Symmetric", 6, 2, 12, 2, -1, 1))
sketch12.addConstraint(Sketcher.Constraint("Symmetric", 4, 2, 14, 2, -1, 1))
sketch12.addConstraint(Sketcher.Constraint("Horizontal", 5, 2, 12, 2))
sketch12.addConstraint(Sketcher.Constraint("Vertical", 3, 2, 8, 2))
sketch12.addConstraint(Sketcher.Constraint("Equal", 15, 0))
sketch12.addConstraint(Sketcher.Constraint("Equal", 11, 4))
sketch12.addConstraint(Sketcher.Constraint("DistanceX", 1, 1, 1, 2, 1.28))
sketch12.addConstraint(Sketcher.Constraint("DistanceX", 5, 1, 5, 2, 2.28))
sketch12.addConstraint(Sketcher.Constraint("DistanceY", -1, 1, 0, 2, 3.840992))
sketch12.addConstraint(Sketcher.Constraint("DistanceX", -1, 1, 4, 2, 3.840992))
sketch12.setExpression("Constraints[40]", "Params.sketch12_width")
sketch12.setExpression("Constraints[41]", "Params.sketch12_width2")
pad12 = doc.addObject("PartDesign::Pad", "Pad011")
body.addObject(pad12)
pad12.Profile = sketch12
pad12.setExpression("Length", "Params.pad12_length")

# Sketch on XY plane
sketch13 = doc.addObject("Sketcher::SketchObject", "Sketch012")
body.addObject(sketch13)
sketch13.AttachmentSupport = (doc.XY_Plane, [""])
sketch13.MapMode = "FlatFace"
sketch13.AttachmentOffset = App.Placement(V(0, 0, -0.64), App.Rotation())
sketch13.addGeometry(Part.LineSegment(V(-6.1, -2.9, 0), V(-3.8, -1.7, 0)), False)
sketch13.addGeometry(Part.LineSegment(V(-3.8, -1.7, 0), V(-3.8, -2.9, 0)), False)
sketch13.addGeometry(Part.LineSegment(V(-3.8, -2.9, 0), V(-6.1, -2.9, 0)), False)
sketch13.addConstraint(Sketcher.Constraint("Coincident", 0, 2, 1, 1))
sketch13.addConstraint(Sketcher.Constraint("Coincident", 1, 2, 2, 1))
sketch13.addConstraint(Sketcher.Constraint("Coincident", 2, 2, 0, 1))
sketch13.addConstraint(Sketcher.Constraint("Vertical", 1))
sketch13.addConstraint(Sketcher.Constraint("Horizontal", 2))
sketch13.addConstraint(Sketcher.Constraint("DistanceX", 2, 2, 2, 1, 2.28))
sketch13.addConstraint(Sketcher.Constraint("DistanceY", 1, 2, 1, 1, 1.22))
sketch13.addConstraint(Sketcher.Constraint("DistanceY", 0, 2, -1, 1, 1.7))
sketch13.addConstraint(Sketcher.Constraint("DistanceX", 0, 2, -1, 1, 3.840992))
sketch13.setExpression("Constraints[5]", "Params.sketch13_width")
sketch13.setExpression("Constraints[6]", "Params.sketch13_height")
pocket1 = doc.addObject("PartDesign::Pocket", "Pocket")
body.addObject(pocket1)
pocket1.Profile = sketch13
pocket1.Type = "ThroughAll"
pocket1.Reversed = True

# Sketch on YZ plane
sketch14 = doc.addObject("Sketcher::SketchObject", "Sketch013")
body.addObject(sketch14)
sketch14.AttachmentSupport = (doc.YZ_Plane, [""])
sketch14.MapMode = "FlatFace"
sketch14.AttachmentOffset = App.Placement(V(0, 0, 0.64), App.Rotation())
sketch14.addGeometry(Part.LineSegment(V(-2.9, -6.1, 0), V(-1.7, -3.8, 0)), False)
sketch14.addGeometry(Part.LineSegment(V(-1.7, -3.8, 0), V(-2.9, -3.8, 0)), False)
sketch14.addGeometry(Part.LineSegment(V(-2.9, -3.8, 0), V(-2.9, -6.1, 0)), False)
sketch14.addGeometry(Part.LineSegment(V(-2.9, 6.1, 0), V(-2.9, 3.8, 0)), False)
sketch14.addGeometry(Part.LineSegment(V(-2.9, 3.8, 0), V(-1.7, 3.8, 0)), False)
sketch14.addGeometry(Part.LineSegment(V(-1.7, 3.8, 0), V(-2.9, 6.1, 0)), False)
sketch14.addConstraint(Sketcher.Constraint("Coincident", 0, 2, 1, 1))
sketch14.addConstraint(Sketcher.Constraint("Coincident", 1, 2, 2, 1))
sketch14.addConstraint(Sketcher.Constraint("Coincident", 2, 2, 0, 1))
sketch14.addConstraint(Sketcher.Constraint("Coincident", 3, 2, 4, 1))
sketch14.addConstraint(Sketcher.Constraint("Coincident", 4, 2, 5, 1))
sketch14.addConstraint(Sketcher.Constraint("Coincident", 5, 2, 3, 1))
sketch14.addConstraint(Sketcher.Constraint("Horizontal", 1))
sketch14.addConstraint(Sketcher.Constraint("Vertical", 2))
sketch14.addConstraint(Sketcher.Constraint("Vertical", 3))
sketch14.addConstraint(Sketcher.Constraint("Horizontal", 4))
sketch14.addConstraint(Sketcher.Constraint("Symmetric", 1, 2, 3, 2, -1))
sketch14.addConstraint(Sketcher.Constraint("Vertical", 0, 2, 4, 2))
sketch14.addConstraint(Sketcher.Constraint("Equal", 2, 3))
sketch14.addConstraint(Sketcher.Constraint("DistanceX", 1, 2, 1, 1, 1.22))
sketch14.addConstraint(Sketcher.Constraint("DistanceY", 2, 2, 2, 1, 2.28))
sketch14.addConstraint(Sketcher.Constraint("DistanceX", 0, 2, -1, 1, 1.7))
sketch14.addConstraint(Sketcher.Constraint("DistanceY", 0, 2, -1, 1, 3.840992))
sketch14.setExpression("Constraints[13]", "Params.sketch14_width")
sketch14.setExpression("Constraints[14]", "Params.sketch14_height")
pocket2 = doc.addObject("PartDesign::Pocket", "Pocket001")
body.addObject(pocket2)
pocket2.Profile = sketch14
pocket2.setExpression("Length", "Params.pocket2_length")

# Sketch on XY plane
sketch15 = doc.addObject("Sketcher::SketchObject", "Sketch014")
body.addObject(sketch15)
sketch15.AttachmentSupport = (doc.XY_Plane, [""])
sketch15.MapMode = "FlatFace"
sketch15.AttachmentOffset = App.Placement(V(0, 0, -0.64), App.Rotation())
sketch15.addGeometry(Part.LineSegment(V(6.1, -2.9, 0), V(3.8, -2.9, 0)), False)
sketch15.addGeometry(Part.LineSegment(V(3.8, -2.9, 0), V(3.8, -1.7, 0)), False)
sketch15.addGeometry(Part.LineSegment(V(3.8, -1.7, 0), V(6.1, -2.9, 0)), False)
sketch15.addConstraint(Sketcher.Constraint("Coincident", 0, 2, 1, 1))
sketch15.addConstraint(Sketcher.Constraint("Coincident", 1, 2, 2, 1))
sketch15.addConstraint(Sketcher.Constraint("Coincident", 2, 2, 0, 1))
sketch15.addConstraint(Sketcher.Constraint("Horizontal", 0))
sketch15.addConstraint(Sketcher.Constraint("Vertical", 1))
sketch15.addConstraint(Sketcher.Constraint("DistanceX", 0, 2, 0, 1, 2.28))
sketch15.addConstraint(Sketcher.Constraint("DistanceY", 1, 1, 1, 2, 1.22))
sketch15.addConstraint(Sketcher.Constraint("DistanceY", 1, 2, -1, 1, 1.7))
sketch15.addConstraint(Sketcher.Constraint("DistanceX", -1, 1, 0, 2, 3.840992))
sketch15.setExpression("Constraints[5]", "Params.sketch15_width")
sketch15.setExpression("Constraints[6]", "Params.sketch15_height")
pocket3 = doc.addObject("PartDesign::Pocket", "Pocket002")
body.addObject(pocket3)
pocket3.Profile = sketch15
pocket3.setExpression("Length", "Params.pocket3_length")
pocket3.Reversed = True

doc.recompute()
